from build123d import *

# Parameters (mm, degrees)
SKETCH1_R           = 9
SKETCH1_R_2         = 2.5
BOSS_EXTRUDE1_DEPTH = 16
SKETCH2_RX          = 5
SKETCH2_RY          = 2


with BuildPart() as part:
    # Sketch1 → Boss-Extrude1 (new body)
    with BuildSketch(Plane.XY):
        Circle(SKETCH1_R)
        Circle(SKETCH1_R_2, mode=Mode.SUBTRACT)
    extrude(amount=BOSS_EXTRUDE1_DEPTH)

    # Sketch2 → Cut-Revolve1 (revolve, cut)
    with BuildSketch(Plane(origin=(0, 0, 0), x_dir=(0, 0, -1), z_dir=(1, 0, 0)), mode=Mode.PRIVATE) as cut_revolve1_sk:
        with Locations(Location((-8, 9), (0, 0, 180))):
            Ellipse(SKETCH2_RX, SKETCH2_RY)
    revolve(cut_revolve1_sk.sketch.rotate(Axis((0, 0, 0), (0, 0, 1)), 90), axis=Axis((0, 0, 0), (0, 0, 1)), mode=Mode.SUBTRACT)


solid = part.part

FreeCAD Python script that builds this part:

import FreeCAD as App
import Part
import Sketcher

V = App.Vector

doc = App.newDocument("Part")
body = doc.addObject("PartDesign::Body", "Body")

sketch1 = doc.addObject("Sketcher::SketchObject", "Sketch")
body.addObject(sketch1)
sketch1.AttachmentSupport = (doc.XY_Plane, [""])
sketch1.MapMode = "FlatFace"
sketch1.addGeometry(Part.Circle(V(0, 0, 0), V(0, 0, 1), 9), False)
sketch1.addGeometry(Part.Circle(V(0, 0, 0), V(0, 0, 1), 2.5), False)
sketch1.addConstraint(Sketcher.Constraint("Coincident", 0, 3, -1, 1))
sketch1.addConstraint(Sketcher.Constraint("Coincident", 1, 3, -1, 1))
sketch1.addConstraint(Sketcher.Constraint("Diameter", 0, 18.0))
sketch1.addConstraint(Sketcher.Constraint("Diameter", 1, 5.0))
pad1 = doc.addObject("PartDesign::Pad", "Pad")
body.addObject(pad1)
pad1.Profile = sketch1
pad1.Length = 16

sketch2 = doc.addObject("Sketcher::SketchObject", "Sketch001")
body.addObject(sketch2)
sketch2.AttachmentSupport = (doc.YZ_Plane, [""])
sketch2.MapMode = "FlatFace"
sketch2.addGeometry(Part.Ellipse(V(9, 13, 0), V(7, 8, 0), V(9, 8, 0)), False)
sketch2.addConstraint(Sketcher.Constraint("Block", 0))
groove = doc.addObject("PartDesign::Groove", "Groove")
body.addObject(groove)
groove.Profile = sketch2
groove.ReferenceAxis = (sketch2, ["V_Axis"])
groove.Angle = 360

doc.recompute()
